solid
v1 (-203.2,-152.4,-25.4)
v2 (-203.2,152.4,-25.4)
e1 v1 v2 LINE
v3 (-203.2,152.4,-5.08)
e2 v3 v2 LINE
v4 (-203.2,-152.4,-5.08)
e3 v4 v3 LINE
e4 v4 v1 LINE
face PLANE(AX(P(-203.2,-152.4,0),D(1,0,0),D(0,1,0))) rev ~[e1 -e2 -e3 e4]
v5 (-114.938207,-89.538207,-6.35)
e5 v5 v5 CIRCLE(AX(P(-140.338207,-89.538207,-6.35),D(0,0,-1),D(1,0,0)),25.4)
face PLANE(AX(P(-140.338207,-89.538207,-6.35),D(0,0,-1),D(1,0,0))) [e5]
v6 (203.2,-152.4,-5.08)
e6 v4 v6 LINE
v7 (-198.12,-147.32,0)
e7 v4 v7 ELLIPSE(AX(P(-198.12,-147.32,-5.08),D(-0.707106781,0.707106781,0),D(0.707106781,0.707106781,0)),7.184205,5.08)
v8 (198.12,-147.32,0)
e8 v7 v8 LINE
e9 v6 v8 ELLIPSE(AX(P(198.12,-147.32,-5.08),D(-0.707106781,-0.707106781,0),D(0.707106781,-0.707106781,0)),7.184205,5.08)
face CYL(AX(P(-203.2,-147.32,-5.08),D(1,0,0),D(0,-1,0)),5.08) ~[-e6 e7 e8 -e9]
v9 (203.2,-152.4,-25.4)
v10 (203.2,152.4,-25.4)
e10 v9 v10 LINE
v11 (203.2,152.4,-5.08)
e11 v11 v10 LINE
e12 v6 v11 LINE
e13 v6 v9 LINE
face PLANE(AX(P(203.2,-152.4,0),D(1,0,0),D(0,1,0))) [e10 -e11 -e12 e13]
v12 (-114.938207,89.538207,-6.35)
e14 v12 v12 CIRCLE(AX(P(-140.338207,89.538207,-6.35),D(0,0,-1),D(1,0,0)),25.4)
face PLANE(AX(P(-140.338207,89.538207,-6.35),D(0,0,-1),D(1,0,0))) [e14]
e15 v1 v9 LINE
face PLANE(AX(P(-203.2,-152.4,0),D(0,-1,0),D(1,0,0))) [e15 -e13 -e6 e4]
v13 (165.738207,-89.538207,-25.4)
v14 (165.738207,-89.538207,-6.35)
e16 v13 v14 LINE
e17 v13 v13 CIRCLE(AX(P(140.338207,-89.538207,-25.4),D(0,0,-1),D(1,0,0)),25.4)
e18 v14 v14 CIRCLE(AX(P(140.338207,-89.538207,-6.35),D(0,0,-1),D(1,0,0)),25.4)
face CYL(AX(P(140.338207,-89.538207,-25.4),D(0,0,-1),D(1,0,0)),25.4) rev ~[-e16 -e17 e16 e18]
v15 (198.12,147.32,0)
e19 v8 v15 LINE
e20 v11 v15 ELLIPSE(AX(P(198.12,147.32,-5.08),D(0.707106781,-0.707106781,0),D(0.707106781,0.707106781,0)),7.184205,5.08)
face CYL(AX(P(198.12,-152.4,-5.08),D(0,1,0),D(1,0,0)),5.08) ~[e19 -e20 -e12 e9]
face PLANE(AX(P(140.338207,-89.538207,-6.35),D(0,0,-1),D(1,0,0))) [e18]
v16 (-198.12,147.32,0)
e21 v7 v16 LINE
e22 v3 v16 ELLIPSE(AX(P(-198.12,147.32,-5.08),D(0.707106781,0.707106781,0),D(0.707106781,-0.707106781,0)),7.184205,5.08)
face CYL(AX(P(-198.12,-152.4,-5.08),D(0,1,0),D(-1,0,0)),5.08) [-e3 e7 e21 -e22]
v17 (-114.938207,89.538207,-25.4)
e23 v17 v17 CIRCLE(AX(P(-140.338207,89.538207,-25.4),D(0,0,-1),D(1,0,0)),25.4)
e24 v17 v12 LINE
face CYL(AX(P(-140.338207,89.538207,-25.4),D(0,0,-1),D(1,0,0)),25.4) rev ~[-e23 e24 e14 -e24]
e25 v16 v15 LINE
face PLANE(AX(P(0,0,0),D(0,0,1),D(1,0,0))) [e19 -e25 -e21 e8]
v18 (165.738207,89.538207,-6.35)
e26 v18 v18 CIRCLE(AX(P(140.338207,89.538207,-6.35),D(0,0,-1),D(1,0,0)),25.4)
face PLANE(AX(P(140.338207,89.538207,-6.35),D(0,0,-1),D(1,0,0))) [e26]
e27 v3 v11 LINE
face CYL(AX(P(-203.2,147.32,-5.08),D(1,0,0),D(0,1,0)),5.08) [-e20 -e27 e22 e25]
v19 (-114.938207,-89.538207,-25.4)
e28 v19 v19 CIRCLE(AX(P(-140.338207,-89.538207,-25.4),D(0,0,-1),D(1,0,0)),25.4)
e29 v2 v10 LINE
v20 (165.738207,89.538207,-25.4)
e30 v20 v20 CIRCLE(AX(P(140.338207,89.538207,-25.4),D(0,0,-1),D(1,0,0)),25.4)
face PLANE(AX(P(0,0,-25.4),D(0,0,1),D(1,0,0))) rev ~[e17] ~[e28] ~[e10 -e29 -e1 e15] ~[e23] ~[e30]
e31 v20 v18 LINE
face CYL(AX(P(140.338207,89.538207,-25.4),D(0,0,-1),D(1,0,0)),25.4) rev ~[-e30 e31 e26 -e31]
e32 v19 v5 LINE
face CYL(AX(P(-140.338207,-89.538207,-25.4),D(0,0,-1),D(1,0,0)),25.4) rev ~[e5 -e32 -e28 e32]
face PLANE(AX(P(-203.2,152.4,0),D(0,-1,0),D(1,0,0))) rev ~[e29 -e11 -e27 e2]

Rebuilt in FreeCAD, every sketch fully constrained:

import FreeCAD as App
import Part
import Sketcher
Q = App.Units.Quantity


def edges_at(feature, points):
    """Names of the edges that pass closest to the given points."""
    edges = feature.Shape.Edges
    near = lambda p: min(range(len(edges)), key=lambda i: edges[i].distToShape(Part.Vertex(*p))[0])
    return sorted({f"Edge{near(p) + 1}" for p in points})

doc = App.newDocument("Part")
body = doc.addObject("PartDesign::Body", "Body")

# Sketch on XY plane
sketch1 = doc.addObject("Sketcher::SketchObject", "Sketch")
body.addObject(sketch1)
sketch1.AttachmentSupport = (doc.XY_Plane, [""])
sketch1.MapMode = "FlatFace"
sketch1.addGeometry(Part.LineSegment(App.Vector(-203, 152, 0), App.Vector(-203, -152, 0)), False)
sketch1.addGeometry(Part.LineSegment(App.Vector(-203, -152, 0), App.Vector(203, -152, 0)), False)
sketch1.addGeometry(Part.LineSegment(App.Vector(203, -152, 0), App.Vector(203, 152, 0)), False)
sketch1.addGeometry(Part.LineSegment(App.Vector(203, 152, 0), App.Vector(-203, 152, 0)), False)
sketch1.addConstraint(Sketcher.Constraint("Coincident", 0, 2, 1, 1))
sketch1.addConstraint(Sketcher.Constraint("Coincident", 1, 2, 2, 1))
sketch1.addConstraint(Sketcher.Constraint("Coincident", 2, 2, 3, 1))
sketch1.addConstraint(Sketcher.Constraint("Coincident", 3, 2, 0, 1))
sketch1.addConstraint(Sketcher.Constraint("Vertical", 0))
sketch1.addConstraint(Sketcher.Constraint("Horizontal", 1))
sketch1.addConstraint(Sketcher.Constraint("Vertical", 2))
sketch1.addConstraint(Sketcher.Constraint("Horizontal", 3))
sketch1.addConstraint(Sketcher.Constraint("Symmetric", 0, 2, 2, 2, -1, 1))
sketch1.addConstraint(Sketcher.Constraint("DistanceX", 1, 1, 1, 2, Q("16 in")))
sketch1.addConstraint(Sketcher.Constraint("DistanceY", 0, 2, 0, 1, Q("12 in")))
pad1 = doc.addObject("PartDesign::Pad", "Pad")
body.addObject(pad1)
pad1.Profile = sketch1
pad1.Length = Q("1 in")
pad1.Reversed = True
doc.recompute()

fillet = doc.addObject("PartDesign::Fillet", "Fillet")
body.addObject(fillet)
fillet.Base = (pad1, edges_at(pad1, [
    (0, -152.4, 0),
    (203.2, 0, 0),
    (0, 152.4, 0),
    (-203.2, 0, 0),
]))
fillet.Radius = Q("0.2 in")

# Sketch on XY plane
sketch2 = doc.addObject("Sketcher::SketchObject", "Sketch001")
body.addObject(sketch2)
sketch2.AttachmentSupport = (doc.XY_Plane, [""])
sketch2.MapMode = "FlatFace"
sketch2.AttachmentOffset = App.Placement(App.Vector(0, 0, -1 * 25.4), App.Rotation())
sketch2.addGeometry(Part.Circle(App.Vector(-140, -90, 0), App.Vector(0, 0, 1), 25), False)
sketch2.addGeometry(Part.Circle(App.Vector(140, -90, 0), App.Vector(0, 0, 1), 25), False)
sketch2.addGeometry(Part.Circle(App.Vector(-140, 90, 0), App.Vector(0, 0, 1), 25), False)
sketch2.addGeometry(Part.Circle(App.Vector(140, 90, 0), App.Vector(0, 0, 1), 25), False)
sketch2.addConstraint(Sketcher.Constraint("Equal", 0, 1))
sketch2.addConstraint(Sketcher.Constraint("Equal", 1, 2))
sketch2.addConstraint(Sketcher.Constraint("Equal", 2, 3))
sketch2.addConstraint(Sketcher.Constraint("Symmetric", 1, 3, 2, 3, -1, 1))
sketch2.addConstraint(Sketcher.Constraint("Symmetric", 0, 3, 3, 3, -1, 1))
sketch2.addConstraint(Sketcher.Constraint("Symmetric", 0, 3, 1, 3, -2))
sketch2.addConstraint(Sketcher.Constraint("Diameter", 0, Q("2 in")))
sketch2.addConstraint(Sketcher.Constraint("DistanceX", 0, 3, -1, 1, 140.338207))
sketch2.addConstraint(Sketcher.Constraint("DistanceY", 0, 3, -1, 1, 89.538207))
pocket1 = doc.addObject("PartDesign::Pocket", "Pocket")
body.addObject(pocket1)
pocket1.Profile = sketch2
pocket1.Length = Q("0.75 in")
pocket1.Reversed = True

doc.recompute()
